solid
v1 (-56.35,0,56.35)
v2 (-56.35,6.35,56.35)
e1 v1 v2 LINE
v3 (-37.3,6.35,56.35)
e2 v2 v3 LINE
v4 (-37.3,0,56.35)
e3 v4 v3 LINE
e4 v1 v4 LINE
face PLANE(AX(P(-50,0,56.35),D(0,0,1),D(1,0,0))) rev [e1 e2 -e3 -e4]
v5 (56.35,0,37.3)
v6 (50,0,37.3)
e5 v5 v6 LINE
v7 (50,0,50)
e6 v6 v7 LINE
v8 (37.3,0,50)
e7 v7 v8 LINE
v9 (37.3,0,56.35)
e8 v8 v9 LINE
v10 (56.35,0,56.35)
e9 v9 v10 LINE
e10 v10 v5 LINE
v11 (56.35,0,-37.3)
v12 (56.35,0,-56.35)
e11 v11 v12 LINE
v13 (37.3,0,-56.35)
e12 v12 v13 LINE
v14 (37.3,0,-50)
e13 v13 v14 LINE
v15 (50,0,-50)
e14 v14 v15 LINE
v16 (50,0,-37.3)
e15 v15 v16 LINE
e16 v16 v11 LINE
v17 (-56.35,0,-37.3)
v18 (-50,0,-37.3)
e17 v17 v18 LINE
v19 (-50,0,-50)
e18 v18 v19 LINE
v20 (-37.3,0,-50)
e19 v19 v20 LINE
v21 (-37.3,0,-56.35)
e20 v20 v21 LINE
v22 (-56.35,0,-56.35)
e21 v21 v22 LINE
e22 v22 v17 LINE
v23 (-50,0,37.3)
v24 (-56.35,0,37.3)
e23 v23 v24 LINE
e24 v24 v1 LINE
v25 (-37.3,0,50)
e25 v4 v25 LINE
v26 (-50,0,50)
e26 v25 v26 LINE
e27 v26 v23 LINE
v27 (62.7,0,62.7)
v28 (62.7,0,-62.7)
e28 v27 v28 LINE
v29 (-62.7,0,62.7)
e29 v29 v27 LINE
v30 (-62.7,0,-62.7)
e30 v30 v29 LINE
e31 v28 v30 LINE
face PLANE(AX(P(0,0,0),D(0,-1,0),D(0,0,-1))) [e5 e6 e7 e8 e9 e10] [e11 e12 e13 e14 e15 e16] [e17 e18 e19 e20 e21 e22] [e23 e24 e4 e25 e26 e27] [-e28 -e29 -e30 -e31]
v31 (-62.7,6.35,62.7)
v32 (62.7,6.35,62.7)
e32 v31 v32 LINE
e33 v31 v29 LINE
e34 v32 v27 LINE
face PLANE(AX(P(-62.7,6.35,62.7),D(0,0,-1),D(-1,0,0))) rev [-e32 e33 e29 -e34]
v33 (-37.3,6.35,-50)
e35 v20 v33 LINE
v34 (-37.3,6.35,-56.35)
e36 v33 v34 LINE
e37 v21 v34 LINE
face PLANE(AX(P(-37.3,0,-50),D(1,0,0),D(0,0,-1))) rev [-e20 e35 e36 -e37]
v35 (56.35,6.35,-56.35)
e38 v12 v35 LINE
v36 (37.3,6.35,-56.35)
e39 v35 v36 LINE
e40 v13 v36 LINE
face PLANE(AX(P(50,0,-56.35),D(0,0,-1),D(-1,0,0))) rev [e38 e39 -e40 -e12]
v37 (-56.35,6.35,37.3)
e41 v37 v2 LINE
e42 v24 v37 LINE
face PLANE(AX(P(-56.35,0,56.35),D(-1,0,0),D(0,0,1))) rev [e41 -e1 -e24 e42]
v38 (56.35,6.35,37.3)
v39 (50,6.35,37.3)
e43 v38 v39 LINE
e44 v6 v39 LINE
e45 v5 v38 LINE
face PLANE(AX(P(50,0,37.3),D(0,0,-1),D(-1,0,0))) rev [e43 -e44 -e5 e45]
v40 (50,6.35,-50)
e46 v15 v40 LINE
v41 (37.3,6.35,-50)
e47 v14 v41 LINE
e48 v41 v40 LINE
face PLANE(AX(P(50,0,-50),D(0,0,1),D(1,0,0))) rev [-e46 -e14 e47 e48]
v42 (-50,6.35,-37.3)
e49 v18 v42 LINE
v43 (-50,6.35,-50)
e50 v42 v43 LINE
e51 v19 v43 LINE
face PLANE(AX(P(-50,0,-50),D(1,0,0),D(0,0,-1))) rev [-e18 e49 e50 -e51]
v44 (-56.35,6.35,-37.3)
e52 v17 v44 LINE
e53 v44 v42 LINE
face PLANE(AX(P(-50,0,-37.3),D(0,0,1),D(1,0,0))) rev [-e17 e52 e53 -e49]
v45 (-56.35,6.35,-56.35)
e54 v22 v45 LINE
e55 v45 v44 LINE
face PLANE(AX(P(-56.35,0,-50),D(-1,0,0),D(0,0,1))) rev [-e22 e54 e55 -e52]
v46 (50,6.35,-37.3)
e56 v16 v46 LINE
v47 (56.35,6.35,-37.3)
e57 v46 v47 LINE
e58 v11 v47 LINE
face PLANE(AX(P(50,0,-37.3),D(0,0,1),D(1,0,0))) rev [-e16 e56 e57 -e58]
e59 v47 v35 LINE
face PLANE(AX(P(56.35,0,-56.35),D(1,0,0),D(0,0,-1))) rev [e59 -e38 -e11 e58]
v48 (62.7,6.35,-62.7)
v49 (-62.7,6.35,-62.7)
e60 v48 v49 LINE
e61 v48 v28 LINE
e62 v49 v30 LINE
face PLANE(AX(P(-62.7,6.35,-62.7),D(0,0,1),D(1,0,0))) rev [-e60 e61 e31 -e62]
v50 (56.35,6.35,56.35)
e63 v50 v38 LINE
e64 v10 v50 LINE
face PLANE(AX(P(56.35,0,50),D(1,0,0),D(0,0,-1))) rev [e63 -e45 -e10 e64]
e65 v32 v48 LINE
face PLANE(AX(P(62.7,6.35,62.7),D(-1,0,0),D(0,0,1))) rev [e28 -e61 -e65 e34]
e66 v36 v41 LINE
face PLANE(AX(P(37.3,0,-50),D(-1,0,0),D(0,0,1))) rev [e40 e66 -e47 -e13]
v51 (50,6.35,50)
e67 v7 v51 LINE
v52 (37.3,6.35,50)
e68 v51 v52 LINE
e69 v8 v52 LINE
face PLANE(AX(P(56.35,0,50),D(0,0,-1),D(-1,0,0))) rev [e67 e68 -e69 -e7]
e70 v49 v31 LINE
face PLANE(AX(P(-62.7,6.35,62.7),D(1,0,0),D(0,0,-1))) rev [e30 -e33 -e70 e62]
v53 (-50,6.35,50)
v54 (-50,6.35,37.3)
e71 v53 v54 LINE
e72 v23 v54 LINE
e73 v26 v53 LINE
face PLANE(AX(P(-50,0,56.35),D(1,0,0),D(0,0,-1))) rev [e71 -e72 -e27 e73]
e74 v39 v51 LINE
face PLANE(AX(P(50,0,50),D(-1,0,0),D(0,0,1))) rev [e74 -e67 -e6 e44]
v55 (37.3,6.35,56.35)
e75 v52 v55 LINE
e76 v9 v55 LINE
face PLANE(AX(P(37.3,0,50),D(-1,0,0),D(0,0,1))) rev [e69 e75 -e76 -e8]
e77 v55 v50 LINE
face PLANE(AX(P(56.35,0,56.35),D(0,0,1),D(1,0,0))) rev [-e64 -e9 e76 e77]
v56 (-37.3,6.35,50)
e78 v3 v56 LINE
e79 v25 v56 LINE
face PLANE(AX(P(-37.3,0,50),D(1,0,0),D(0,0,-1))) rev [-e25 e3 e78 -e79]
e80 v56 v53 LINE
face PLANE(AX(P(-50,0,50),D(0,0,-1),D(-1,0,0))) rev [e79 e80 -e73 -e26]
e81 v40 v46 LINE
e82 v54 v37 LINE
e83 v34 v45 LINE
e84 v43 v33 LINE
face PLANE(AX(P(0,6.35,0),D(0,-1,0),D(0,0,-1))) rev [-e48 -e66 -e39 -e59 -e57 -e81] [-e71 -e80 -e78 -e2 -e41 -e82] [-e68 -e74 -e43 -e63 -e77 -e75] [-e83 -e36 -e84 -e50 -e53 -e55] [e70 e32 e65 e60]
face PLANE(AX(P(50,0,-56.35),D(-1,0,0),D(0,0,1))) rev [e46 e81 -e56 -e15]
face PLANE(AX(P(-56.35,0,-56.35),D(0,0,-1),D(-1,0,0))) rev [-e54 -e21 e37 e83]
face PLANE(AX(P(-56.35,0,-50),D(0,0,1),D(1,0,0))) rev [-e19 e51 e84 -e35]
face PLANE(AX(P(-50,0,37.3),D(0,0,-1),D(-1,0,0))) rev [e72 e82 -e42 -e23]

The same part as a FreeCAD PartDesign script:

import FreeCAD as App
import Part
import Sketcher

V = App.Vector
Q = App.Units.Quantity

doc = App.newDocument("Part")
body = doc.addObject("PartDesign::Body", "Body")

sketch1 = body.newObject("Sketcher::SketchObject", "Sketch")
sketch1.AttachmentSupport = (doc.getObject("XZ_Plane"), [""])
sketch1.MapMode = "FlatFace"
sketch1.addGeometry(Part.LineSegment(V(-63, -63, 0), V(-63, 63, 0)), False)
sketch1.addGeometry(Part.LineSegment(V(-63, 63, 0), V(63, 63, 0)), False)
sketch1.addGeometry(Part.LineSegment(V(63, 63, 0), V(63, -63, 0)), False)
sketch1.addGeometry(Part.LineSegment(V(63, -63, 0), V(-63, -63, 0)), False)
sketch1.addConstraint(Sketcher.Constraint("Coincident", 0, 2, 1, 1))
sketch1.addConstraint(Sketcher.Constraint("Coincident", 1, 2, 2, 1))
sketch1.addConstraint(Sketcher.Constraint("Coincident", 2, 2, 3, 1))
sketch1.addConstraint(Sketcher.Constraint("Coincident", 3, 2, 0, 1))
sketch1.addConstraint(Sketcher.Constraint("Vertical", 0))
sketch1.addConstraint(Sketcher.Constraint("Horizontal", 1))
sketch1.addConstraint(Sketcher.Constraint("Vertical", 2))
sketch1.addConstraint(Sketcher.Constraint("Horizontal", 3))
sketch1.addConstraint(Sketcher.Constraint("Symmetric", 0, 2, 2, 2, -1, 1))
sketch1.addConstraint(Sketcher.Constraint("Equal", 3, 0))
sketch1.addConstraint(Sketcher.Constraint("DistanceX", 1, 1, 1, 2, Q("125.4 mm")))
pad1 = body.newObject("PartDesign::Pad", "Pad")
pad1.Profile = sketch1
pad1.Length = Q("0.25 in")
pad1.Reversed = True

sketch2 = body.newObject("Sketcher::SketchObject", "Sketch001")
sketch2.AttachmentSupport = (doc.getObject("XZ_Plane"), [""])
sketch2.MapMode = "FlatFace"
sketch2.AttachmentOffset = App.Placement(V(0, 0, -0.25 * 25.4), App.Rotation())
sketch2.addGeometry(Part.LineSegment(V(-56, -50, 0), V(-56, -37, 0)), False)
sketch2.addGeometry(Part.LineSegment(V(-56, -37, 0), V(-50, -37, 0)), False)
sketch2.addGeometry(Part.LineSegment(V(-50, -37, 0), V(-50, -50, 0)), False)
sketch2.addGeometry(Part.LineSegment(V(-50, -50, 0), V(-56, -50, 0)), False)
sketch2.addConstraint(Sketcher.Constraint("Coincident", 0, 2, 1, 1))
sketch2.addConstraint(Sketcher.Constraint("Coincident", 1, 2, 2, 1))
sketch2.addConstraint(Sketcher.Constraint("Coincident", 2, 2, 3, 1))
sketch2.addConstraint(Sketcher.Constraint("Coincident", 3, 2, 0, 1))
sketch2.addConstraint(Sketcher.Constraint("Vertical", 0))
sketch2.addConstraint(Sketcher.Constraint("Horizontal", 1))
sketch2.addConstraint(Sketcher.Constraint("Vertical", 2))
sketch2.addConstraint(Sketcher.Constraint("Horizontal", 3))
sketch2.addConstraint(Sketcher.Constraint("DistanceY", 0, 1, 0, 2, Q("0.5 in")))
sketch2.addConstraint(Sketcher.Constraint("DistanceX", 1, 1, 1, 2, Q("0.25 in")))
sketch2.addConstraint(Sketcher.Constraint("DistanceX", 0, 2, -1, 1, Q("56.35 mm")))
sketch2.addConstraint(Sketcher.Constraint("DistanceY", 0, 2, -1, 1, Q("37.3 mm")))
pocket1 = body.newObject("PartDesign::Pocket", "Pocket")
pocket1.Profile = sketch2
pocket1.Type = "ThroughAll"
pocket1.Reversed = True

sketch3 = body.newObject("Sketcher::SketchObject", "Sketch002")
sketch3.AttachmentSupport = (doc.getObject("XZ_Plane"), [""])
sketch3.MapMode = "FlatFace"
sketch3.AttachmentOffset = App.Placement(V(0, 0, -0.25 * 25.4), App.Rotation())
sketch3.addGeometry(Part.LineSegment(V(-56, -56, 0), V(-56, -50, 0)), False)
sketch3.addGeometry(Part.LineSegment(V(-56, -50, 0), V(-37, -50, 0)), False)
sketch3.addGeometry(Part.LineSegment(V(-37, -50, 0), V(-37, -56, 0)), False)
sketch3.addGeometry(Part.LineSegment(V(-37, -56, 0), V(-56, -56, 0)), False)
sketch3.addConstraint(Sketcher.Constraint("Coincident", 0, 2, 1, 1))
sketch3.addConstraint(Sketcher.Constraint("Coincident", 1, 2, 2, 1))
sketch3.addConstraint(Sketcher.Constraint("Coincident", 2, 2, 3, 1))
sketch3.addConstraint(Sketcher.Constraint("Coincident", 3, 2, 0, 1))
sketch3.addConstraint(Sketcher.Constraint("Vertical", 0))
sketch3.addConstraint(Sketcher.Constraint("Horizontal", 1))
sketch3.addConstraint(Sketcher.Constraint("Vertical", 2))
sketch3.addConstraint(Sketcher.Constraint("Horizontal", 3))
sketch3.addConstraint(Sketcher.Constraint("DistanceX", 1, 1, 1, 2, Q("0.75 in")))
sketch3.addConstraint(Sketcher.Constraint("DistanceY", 0, 1, 0, 2, Q("0.25 in")))
sketch3.addConstraint(Sketcher.Constraint("DistanceX", 0, 2, -1, 1, Q("56.35 mm")))
sketch3.addConstraint(Sketcher.Constraint("DistanceY", 0, 2, -1, 1, Q("50 mm")))
pocket2 = body.newObject("PartDesign::Pocket", "Pocket001")
pocket2.Profile = sketch3
pocket2.Type = "ThroughAll"
pocket2.Reversed = True
doc.recompute()

polarpattern = body.newObject("PartDesign::PolarPattern", "PolarPattern")
polarpattern.Originals = [pocket1]
polarpattern.Axis = (doc.getObject("Y_Axis"), [""])
polarpattern.Angle = 360
polarpattern.Occurrences = 4
body.Tip = polarpattern
doc.recompute()

polarpattern2 = body.newObject("PartDesign::PolarPattern", "PolarPattern001")
polarpattern2.Originals = [pocket2]
polarpattern2.Axis = (doc.getObject("Y_Axis"), [""])
polarpattern2.Angle = 360
polarpattern2.Occurrences = 4
body.Tip = polarpattern2

doc.recompute()
